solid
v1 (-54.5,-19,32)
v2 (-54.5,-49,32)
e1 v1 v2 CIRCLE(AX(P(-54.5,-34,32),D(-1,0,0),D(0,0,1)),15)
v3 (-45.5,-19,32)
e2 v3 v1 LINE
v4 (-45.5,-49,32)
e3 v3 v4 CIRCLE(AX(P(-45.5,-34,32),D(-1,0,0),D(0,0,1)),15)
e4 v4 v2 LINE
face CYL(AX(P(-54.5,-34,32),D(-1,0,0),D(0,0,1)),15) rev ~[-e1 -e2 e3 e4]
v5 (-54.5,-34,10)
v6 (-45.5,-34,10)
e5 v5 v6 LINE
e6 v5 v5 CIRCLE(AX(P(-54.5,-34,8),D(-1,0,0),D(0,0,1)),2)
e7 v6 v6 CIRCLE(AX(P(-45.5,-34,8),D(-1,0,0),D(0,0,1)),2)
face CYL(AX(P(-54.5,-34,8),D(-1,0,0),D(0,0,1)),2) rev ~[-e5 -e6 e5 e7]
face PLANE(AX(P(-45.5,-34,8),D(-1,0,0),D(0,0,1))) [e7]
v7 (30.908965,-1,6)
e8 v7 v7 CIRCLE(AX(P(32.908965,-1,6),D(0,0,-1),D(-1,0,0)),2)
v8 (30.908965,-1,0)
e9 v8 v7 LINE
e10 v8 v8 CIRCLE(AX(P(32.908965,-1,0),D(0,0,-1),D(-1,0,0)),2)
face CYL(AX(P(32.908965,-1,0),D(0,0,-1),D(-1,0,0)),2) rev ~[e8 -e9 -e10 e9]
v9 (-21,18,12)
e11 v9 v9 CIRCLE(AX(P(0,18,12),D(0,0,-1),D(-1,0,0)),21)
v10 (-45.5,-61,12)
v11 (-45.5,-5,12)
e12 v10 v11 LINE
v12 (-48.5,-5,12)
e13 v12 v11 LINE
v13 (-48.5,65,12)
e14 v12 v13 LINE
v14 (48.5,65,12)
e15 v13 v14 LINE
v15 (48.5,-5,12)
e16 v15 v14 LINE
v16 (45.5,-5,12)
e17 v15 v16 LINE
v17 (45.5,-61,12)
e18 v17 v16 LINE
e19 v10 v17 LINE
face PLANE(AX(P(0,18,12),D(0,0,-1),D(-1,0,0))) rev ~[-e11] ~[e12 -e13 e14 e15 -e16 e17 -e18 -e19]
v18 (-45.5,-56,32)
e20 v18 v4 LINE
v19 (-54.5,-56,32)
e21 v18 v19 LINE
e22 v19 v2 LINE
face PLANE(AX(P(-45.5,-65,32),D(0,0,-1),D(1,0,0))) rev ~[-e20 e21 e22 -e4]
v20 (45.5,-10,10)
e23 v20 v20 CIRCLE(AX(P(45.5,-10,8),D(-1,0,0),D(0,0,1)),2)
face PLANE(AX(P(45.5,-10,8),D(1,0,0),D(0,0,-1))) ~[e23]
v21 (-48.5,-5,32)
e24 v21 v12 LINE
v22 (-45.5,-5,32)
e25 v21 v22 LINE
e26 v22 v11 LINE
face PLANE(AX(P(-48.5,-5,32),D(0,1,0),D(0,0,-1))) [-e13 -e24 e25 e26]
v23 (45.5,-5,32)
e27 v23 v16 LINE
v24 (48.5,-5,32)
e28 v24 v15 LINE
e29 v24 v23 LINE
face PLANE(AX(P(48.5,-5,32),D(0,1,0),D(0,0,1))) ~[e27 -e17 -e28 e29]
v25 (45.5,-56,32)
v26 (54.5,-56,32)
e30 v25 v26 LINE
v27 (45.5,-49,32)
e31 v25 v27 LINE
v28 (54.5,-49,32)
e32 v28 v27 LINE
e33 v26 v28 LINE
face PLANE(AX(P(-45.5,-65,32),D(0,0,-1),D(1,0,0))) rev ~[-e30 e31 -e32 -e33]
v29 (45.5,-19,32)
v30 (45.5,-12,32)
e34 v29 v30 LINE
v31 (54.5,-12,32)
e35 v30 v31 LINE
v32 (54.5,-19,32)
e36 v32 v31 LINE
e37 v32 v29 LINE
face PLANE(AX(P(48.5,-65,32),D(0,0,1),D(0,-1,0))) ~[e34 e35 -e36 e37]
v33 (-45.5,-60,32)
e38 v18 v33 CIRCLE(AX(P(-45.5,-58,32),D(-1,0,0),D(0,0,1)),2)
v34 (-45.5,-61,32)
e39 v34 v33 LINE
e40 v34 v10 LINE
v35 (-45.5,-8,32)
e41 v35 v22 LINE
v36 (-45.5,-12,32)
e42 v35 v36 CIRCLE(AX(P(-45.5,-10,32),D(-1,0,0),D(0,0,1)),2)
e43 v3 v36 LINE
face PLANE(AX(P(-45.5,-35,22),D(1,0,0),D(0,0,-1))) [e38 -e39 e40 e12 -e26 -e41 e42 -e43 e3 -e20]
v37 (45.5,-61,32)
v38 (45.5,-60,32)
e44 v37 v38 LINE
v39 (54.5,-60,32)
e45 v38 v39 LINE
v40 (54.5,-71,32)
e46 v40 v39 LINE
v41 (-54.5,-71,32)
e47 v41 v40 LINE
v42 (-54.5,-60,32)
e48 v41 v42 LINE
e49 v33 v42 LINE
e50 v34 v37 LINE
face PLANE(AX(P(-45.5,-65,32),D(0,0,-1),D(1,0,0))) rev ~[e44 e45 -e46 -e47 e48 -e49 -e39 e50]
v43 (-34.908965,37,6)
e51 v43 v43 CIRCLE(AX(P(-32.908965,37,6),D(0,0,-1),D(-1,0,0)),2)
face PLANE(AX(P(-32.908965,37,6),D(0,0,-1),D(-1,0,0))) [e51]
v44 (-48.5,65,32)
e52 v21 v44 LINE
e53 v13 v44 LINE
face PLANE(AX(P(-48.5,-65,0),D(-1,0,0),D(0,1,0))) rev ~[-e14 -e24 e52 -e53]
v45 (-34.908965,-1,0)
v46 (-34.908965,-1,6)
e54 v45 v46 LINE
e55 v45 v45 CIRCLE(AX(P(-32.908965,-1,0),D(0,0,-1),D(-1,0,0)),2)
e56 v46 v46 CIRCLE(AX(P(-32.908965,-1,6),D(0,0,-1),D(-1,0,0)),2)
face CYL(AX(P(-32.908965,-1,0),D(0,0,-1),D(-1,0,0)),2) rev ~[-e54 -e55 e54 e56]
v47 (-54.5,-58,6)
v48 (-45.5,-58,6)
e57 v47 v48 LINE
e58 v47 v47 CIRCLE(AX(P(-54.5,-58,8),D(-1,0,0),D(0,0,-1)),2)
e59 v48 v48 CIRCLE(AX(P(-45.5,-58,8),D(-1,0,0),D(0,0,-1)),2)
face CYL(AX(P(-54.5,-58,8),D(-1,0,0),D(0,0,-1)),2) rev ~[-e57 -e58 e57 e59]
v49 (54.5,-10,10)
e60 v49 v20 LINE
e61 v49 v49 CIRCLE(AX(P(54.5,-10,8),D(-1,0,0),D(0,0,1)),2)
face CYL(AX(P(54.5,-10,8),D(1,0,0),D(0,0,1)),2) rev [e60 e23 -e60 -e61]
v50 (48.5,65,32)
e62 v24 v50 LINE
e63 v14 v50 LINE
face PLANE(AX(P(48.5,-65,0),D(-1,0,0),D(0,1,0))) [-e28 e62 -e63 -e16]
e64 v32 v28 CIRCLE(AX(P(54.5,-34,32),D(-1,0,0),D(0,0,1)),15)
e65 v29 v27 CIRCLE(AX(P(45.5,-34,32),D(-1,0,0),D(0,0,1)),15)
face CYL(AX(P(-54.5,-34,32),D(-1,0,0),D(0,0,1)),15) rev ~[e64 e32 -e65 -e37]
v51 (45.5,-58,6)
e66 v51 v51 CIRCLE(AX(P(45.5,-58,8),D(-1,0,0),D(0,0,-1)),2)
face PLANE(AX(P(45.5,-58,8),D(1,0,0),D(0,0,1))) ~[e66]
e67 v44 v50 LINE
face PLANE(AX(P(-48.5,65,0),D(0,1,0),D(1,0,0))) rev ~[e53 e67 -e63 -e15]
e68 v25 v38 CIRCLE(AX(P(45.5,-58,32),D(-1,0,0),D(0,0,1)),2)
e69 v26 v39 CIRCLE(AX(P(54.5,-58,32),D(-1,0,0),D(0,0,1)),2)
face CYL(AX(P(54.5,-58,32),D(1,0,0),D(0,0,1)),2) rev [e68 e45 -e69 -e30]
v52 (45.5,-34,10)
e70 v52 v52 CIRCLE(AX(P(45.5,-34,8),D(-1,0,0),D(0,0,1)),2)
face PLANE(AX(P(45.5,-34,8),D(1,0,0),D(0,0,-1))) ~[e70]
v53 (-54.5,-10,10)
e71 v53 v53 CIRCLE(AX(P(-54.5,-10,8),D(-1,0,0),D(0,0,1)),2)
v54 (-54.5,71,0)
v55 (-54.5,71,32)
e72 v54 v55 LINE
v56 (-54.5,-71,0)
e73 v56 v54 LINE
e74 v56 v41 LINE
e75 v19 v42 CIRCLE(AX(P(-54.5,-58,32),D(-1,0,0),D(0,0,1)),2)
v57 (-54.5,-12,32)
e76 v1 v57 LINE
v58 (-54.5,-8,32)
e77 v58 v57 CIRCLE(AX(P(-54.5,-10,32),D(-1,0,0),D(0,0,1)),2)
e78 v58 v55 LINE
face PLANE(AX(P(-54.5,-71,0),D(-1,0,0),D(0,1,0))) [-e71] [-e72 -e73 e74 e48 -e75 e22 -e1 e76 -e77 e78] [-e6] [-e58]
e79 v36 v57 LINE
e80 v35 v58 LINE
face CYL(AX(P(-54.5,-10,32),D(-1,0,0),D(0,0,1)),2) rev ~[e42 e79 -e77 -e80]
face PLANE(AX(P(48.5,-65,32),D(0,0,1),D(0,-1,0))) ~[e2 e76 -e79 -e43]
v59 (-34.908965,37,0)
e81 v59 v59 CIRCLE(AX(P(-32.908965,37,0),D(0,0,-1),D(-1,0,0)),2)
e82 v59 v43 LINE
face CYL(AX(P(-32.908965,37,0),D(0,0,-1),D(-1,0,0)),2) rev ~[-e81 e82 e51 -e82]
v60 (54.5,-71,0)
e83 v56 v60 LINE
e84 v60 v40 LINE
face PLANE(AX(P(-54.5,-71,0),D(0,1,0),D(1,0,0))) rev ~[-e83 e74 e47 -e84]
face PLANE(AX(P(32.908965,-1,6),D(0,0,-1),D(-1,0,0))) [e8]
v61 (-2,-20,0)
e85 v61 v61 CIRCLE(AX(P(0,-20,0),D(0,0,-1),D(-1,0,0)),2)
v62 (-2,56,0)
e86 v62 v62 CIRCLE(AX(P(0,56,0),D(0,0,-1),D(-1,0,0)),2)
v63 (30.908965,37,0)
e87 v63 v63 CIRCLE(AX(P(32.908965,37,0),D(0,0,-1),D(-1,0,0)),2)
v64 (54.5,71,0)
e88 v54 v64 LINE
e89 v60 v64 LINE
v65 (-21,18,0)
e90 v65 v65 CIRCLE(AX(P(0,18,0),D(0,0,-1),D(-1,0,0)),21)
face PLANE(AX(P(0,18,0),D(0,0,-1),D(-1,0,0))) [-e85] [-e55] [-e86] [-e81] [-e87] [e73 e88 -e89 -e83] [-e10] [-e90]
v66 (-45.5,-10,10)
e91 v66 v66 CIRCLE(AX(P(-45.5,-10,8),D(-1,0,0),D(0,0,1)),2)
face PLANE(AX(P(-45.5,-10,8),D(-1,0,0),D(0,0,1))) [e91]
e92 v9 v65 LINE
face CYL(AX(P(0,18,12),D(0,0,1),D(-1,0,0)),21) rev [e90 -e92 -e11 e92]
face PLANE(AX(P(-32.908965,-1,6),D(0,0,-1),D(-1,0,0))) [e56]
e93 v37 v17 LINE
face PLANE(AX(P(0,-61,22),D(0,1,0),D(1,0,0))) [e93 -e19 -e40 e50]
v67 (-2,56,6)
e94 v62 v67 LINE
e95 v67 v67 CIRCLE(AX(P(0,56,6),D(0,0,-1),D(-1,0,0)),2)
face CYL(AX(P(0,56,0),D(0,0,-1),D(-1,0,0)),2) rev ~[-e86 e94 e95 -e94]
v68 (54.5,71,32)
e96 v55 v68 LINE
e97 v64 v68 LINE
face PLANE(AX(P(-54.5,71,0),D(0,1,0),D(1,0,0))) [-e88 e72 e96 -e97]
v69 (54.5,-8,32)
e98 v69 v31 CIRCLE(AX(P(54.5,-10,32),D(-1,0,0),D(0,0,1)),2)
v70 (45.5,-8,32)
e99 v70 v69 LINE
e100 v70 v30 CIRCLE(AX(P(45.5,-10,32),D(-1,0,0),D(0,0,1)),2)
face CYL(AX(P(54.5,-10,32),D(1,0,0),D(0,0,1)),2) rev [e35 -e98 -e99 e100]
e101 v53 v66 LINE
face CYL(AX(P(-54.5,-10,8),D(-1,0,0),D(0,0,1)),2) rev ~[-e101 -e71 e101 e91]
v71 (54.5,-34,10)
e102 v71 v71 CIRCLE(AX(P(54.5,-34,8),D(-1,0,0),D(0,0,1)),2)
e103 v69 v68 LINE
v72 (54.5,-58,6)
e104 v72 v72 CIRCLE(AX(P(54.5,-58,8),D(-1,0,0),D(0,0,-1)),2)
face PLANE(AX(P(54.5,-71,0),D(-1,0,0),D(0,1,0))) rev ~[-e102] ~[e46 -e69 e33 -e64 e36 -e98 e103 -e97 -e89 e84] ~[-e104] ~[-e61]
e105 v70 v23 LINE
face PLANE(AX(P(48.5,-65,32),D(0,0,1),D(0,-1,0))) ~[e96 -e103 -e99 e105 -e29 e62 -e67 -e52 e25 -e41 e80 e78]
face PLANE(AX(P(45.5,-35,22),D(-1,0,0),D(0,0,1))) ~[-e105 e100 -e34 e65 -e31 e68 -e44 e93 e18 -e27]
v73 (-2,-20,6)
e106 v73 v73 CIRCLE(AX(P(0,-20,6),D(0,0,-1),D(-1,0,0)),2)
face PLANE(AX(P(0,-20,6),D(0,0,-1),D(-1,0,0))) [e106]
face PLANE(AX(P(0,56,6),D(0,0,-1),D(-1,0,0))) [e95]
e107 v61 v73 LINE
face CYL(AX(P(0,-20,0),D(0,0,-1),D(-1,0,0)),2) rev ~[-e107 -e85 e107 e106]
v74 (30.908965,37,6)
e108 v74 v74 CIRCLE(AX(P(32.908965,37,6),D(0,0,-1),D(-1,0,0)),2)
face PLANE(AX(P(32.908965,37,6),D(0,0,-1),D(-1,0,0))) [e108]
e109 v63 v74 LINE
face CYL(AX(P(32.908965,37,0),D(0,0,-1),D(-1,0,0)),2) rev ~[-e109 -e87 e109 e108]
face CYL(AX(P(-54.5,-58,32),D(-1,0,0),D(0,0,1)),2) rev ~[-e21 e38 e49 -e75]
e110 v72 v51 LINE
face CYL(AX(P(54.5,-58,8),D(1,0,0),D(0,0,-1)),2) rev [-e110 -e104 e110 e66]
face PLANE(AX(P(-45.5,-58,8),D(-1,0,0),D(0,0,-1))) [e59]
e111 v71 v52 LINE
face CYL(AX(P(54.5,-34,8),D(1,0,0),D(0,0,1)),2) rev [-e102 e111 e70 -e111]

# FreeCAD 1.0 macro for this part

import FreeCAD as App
import Part
import Sketcher
Q = App.Units.Quantity


def add_polygon(sketch, points):
    """Adds a closed chain of lines whose ends are joined by coincident constraints."""
    first, n = sketch.GeometryCount, len(points)
    for a, b in zip(points, points[1:] + points[:1]):
        sketch.addGeometry(Part.LineSegment(App.Vector(*a, 0), App.Vector(*b, 0)), False)
    for i in range(n):
        sketch.addConstraint(Sketcher.Constraint("Coincident", first + i, 2, first + (i + 1) % n, 1))

doc = App.newDocument("Part")
body = doc.addObject("PartDesign::Body", "Body")

# Sketch on XY plane
sketch1 = doc.addObject("Sketcher::SketchObject", "Sketch")
body.addObject(sketch1)
sketch1.AttachmentSupport = (doc.XY_Plane, [""])
sketch1.MapMode = "FlatFace"
add_polygon(sketch1, [(-48, 65), (-48, -65), (48, -65), (48, 65)])  # lines 0-3
sketch1.addConstraint(Sketcher.Constraint("Vertical", 0))
sketch1.addConstraint(Sketcher.Constraint("Horizontal", 1))
sketch1.addConstraint(Sketcher.Constraint("Vertical", 2))
sketch1.addConstraint(Sketcher.Constraint("Horizontal", 3))
sketch1.addConstraint(Sketcher.Constraint("Symmetric", 0, 2, 2, 2, -1, 1))
sketch1.addConstraint(Sketcher.Constraint("DistanceX", 1, 1, 1, 2, Q("97 mm")))
sketch1.addConstraint(Sketcher.Constraint("DistanceY", 0, 2, 0, 1, Q("130 mm")))
pad1 = doc.addObject("PartDesign::Pad", "Pad")
body.addObject(pad1)
pad1.Profile = sketch1
pad1.Length = 12

# Sketch on XY plane
sketch2 = doc.addObject("Sketcher::SketchObject", "Sketch001")
body.addObject(sketch2)
sketch2.AttachmentSupport = (doc.XY_Plane, [""])
sketch2.MapMode = "FlatFace"
sketch2.AttachmentOffset = App.Placement(App.Vector(0, 0, 12), App.Rotation())
sketch2.addGeometry(Part.Circle(App.Vector(0, 18, 0), App.Vector(0, 0, 1), 32), False)
sketch2.addConstraint(Sketcher.Constraint("PointOnObject", 0, 3, -2))
sketch2.addConstraint(Sketcher.Constraint("Diameter", 0, Q("64 mm")))
sketch2.addConstraint(Sketcher.Constraint("DistanceY", -1, 1, 0, 3, Q("18 mm")))
pocket1 = doc.addObject("PartDesign::Pocket", "Pocket")
body.addObject(pocket1)
pocket1.Profile = sketch2
pocket1.Length = 12

# Sketch on XY plane
sketch3 = doc.addObject("Sketcher::SketchObject", "Sketch002")
body.addObject(sketch3)
sketch3.AttachmentSupport = (doc.XY_Plane, [""])
sketch3.MapMode = "FlatFace"
add_polygon(sketch3, [(-54, 71), (-54, -71), (54, -71), (54, 71)])  # lines 0-3
add_polygon(sketch3, [(48, -65), (-48, -65), (-48, 65), (48, 65)])  # lines 4-7
sketch3.addConstraint(Sketcher.Constraint("Vertical", 0))
sketch3.addConstraint(Sketcher.Constraint("Horizontal", 1))
sketch3.addConstraint(Sketcher.Constraint("Vertical", 2))
sketch3.addConstraint(Sketcher.Constraint("Horizontal", 3))
sketch3.addConstraint(Sketcher.Constraint("Horizontal", 4))
sketch3.addConstraint(Sketcher.Constraint("Vertical", 5))
sketch3.addConstraint(Sketcher.Constraint("Horizontal", 6))
sketch3.addConstraint(Sketcher.Constraint("Vertical", 7))
sketch3.addConstraint(Sketcher.Constraint("Symmetric", 0, 2, 2, 2, -1, 1))
sketch3.addConstraint(Sketcher.Constraint("Symmetric", 4, 2, 6, 2, -1, 1))
sketch3.addConstraint(Sketcher.Constraint("DistanceX", 1, 1, 1, 2, Q("109 mm")))
sketch3.addConstraint(Sketcher.Constraint("DistanceX", 4, 2, 4, 1, Q("97 mm")))
sketch3.addConstraint(Sketcher.Constraint("DistanceY", 0, 2, 0, 1, Q("142 mm")))
sketch3.addConstraint(Sketcher.Constraint("DistanceY", 5, 1, 5, 2, Q("130 mm")))
pad2 = doc.addObject("PartDesign::Pad", "Pad001")
body.addObject(pad2)
pad2.Profile = sketch3
pad2.Length = 32

# Sketch on YZ plane
sketch4 = doc.addObject("Sketcher::SketchObject", "Sketch003")
body.addObject(sketch4)
sketch4.AttachmentSupport = (doc.YZ_Plane, [""])
sketch4.MapMode = "FlatFace"
sketch4.AttachmentOffset = App.Placement(App.Vector(0, 0, -48.5), App.Rotation())
add_polygon(sketch4, [(-5, 32), (-65, 32), (-65, 12), (-5, 12)])  # lines 0-3
sketch4.addConstraint(Sketcher.Constraint("Horizontal", 0))
sketch4.addConstraint(Sketcher.Constraint("Vertical", 1))
sketch4.addConstraint(Sketcher.Constraint("Horizontal", 2))
sketch4.addConstraint(Sketcher.Constraint("Vertical", 3))
sketch4.addConstraint(Sketcher.Constraint("DistanceX", 0, 2, 0, 1, Q("60 mm")))
sketch4.addConstraint(Sketcher.Constraint("DistanceY", 1, 2, 1, 1, Q("20 mm")))
sketch4.addConstraint(Sketcher.Constraint("DistanceX", 0, 2, -1, 1, Q("65 mm")))
sketch4.addConstraint(Sketcher.Constraint("DistanceY", -1, 1, 0, 2, Q("32 mm")))
pad3 = doc.addObject("PartDesign::Pad", "Pad002")
body.addObject(pad3)
pad3.Profile = sketch4
pad3.Length = 3
doc.recompute()

mirrored = doc.addObject("PartDesign::Mirrored", "Mirrored")
body.addObject(mirrored)
mirrored.Originals = [pad3]
mirrored.MirrorPlane = (doc.YZ_Plane, [""])
body.Tip = mirrored

# Sketch on YZ plane
sketch5 = doc.addObject("Sketcher::SketchObject", "Sketch004")
body.addObject(sketch5)
sketch5.AttachmentSupport = (doc.YZ_Plane, [""])
sketch5.MapMode = "FlatFace"
sketch5.AttachmentOffset = App.Placement(App.Vector(0, 0, -54.5), App.Rotation())
sketch5.addGeometry(Part.Circle(App.Vector(-34, 32, 0), App.Vector(0, 0, 1), 15), False)
sketch5.addConstraint(Sketcher.Constraint("Diameter", 0, Q("30 mm")))
sketch5.addConstraint(Sketcher.Constraint("DistanceX", 0, 3, -1, 1, Q("34 mm")))
sketch5.addConstraint(Sketcher.Constraint("DistanceY", -1, 1, 0, 3, Q("32 mm")))
pocket2 = doc.addObject("PartDesign::Pocket", "Pocket001")
body.addObject(pocket2)
pocket2.Profile = sketch5
pocket2.Type = "ThroughAll"
pocket2.Reversed = True

# Sketch on XZ plane
sketch6 = doc.addObject("Sketcher::SketchObject", "Sketch005")
body.addObject(sketch6)
sketch6.AttachmentSupport = (doc.XZ_Plane, [""])
sketch6.MapMode = "FlatFace"
sketch6.AttachmentOffset = App.Placement(App.Vector(0, 0, 65), App.Rotation())
add_polygon(sketch6, [(-46, 12), (-46, 32), (46, 32), (46, 12)])  # lines 0-3
sketch6.addConstraint(Sketcher.Constraint("Vertical", 0))
sketch6.addConstraint(Sketcher.Constraint("Horizontal", 1))
sketch6.addConstraint(Sketcher.Constraint("Vertical", 2))
sketch6.addConstraint(Sketcher.Constraint("Horizontal", 3))
sketch6.addConstraint(Sketcher.Constraint("DistanceX", 1, 1, 1, 2, Q("91 mm")))
sketch6.addConstraint(Sketcher.Constraint("DistanceY", 0, 1, 0, 2, Q("20 mm")))
sketch6.addConstraint(Sketcher.Constraint("DistanceY", -1, 1, 0, 2, Q("32 mm")))
sketch6.addConstraint(Sketcher.Constraint("DistanceX", 0, 2, -1, 1, Q("45.5 mm")))
pad4 = doc.addObject("PartDesign::Pad", "Pad003")
body.addObject(pad4)
pad4.Profile = sketch6
pad4.Length = 4
pad4.Reversed = True

# Sketch on YZ plane
sketch7 = doc.addObject("Sketcher::SketchObject", "Sketch006")
body.addObject(sketch7)
sketch7.AttachmentSupport = (doc.YZ_Plane, [""])
sketch7.MapMode = "FlatFace"
sketch7.AttachmentOffset = App.Placement(App.Vector(0, 0, -54.5), App.Rotation())
sketch7.addGeometry(Part.Circle(App.Vector(-10, 32, 0), App.Vector(0, 0, 1), 2), False)
sketch7.addGeometry(Part.Circle(App.Vector(-10, 8, 0), App.Vector(0, 0, 1), 2), False)
sketch7.addGeometry(Part.Circle(App.Vector(-10, 56, 0), App.Vector(0, 0, 1), 2), False)
sketch7.addGeometry(Part.Circle(App.Vector(-58, 56, 0), App.Vector(0, 0, 1), 2), False)
sketch7.addGeometry(Part.Circle(App.Vector(-58, 32, 0), App.Vector(0, 0, 1), 2), False)
sketch7.addGeometry(Part.Circle(App.Vector(-58, 8, 0), App.Vector(0, 0, 1), 2), False)
sketch7.addGeometry(Part.Circle(App.Vector(-34, 8, 0), App.Vector(0, 0, 1), 2), False)
sketch7.addConstraint(Sketcher.Constraint("Equal", 0, 1))
sketch7.addConstraint(Sketcher.Constraint("Equal", 1, 2))
sketch7.addConstraint(Sketcher.Constraint("Equal", 2, 3))
sketch7.addConstraint(Sketcher.Constraint("Equal", 3, 4))
sketch7.addConstraint(Sketcher.Constraint("Equal", 4, 5))
sketch7.addConstraint(Sketcher.Constraint("Equal", 5, 6))
sketch7.addConstraint(Sketcher.Constraint("Horizontal", 2, 3, 3, 3))
sketch7.addConstraint(Sketcher.Constraint("Horizontal", 0, 3, 4, 3))
sketch7.addConstraint(Sketcher.Constraint("Horizontal", 1, 3, 5, 3))
sketch7.addConstraint(Sketcher.Constraint("Horizontal", 5, 3, 6, 3))
sketch7.addConstraint(Sketcher.Constraint("Vertical", 0, 3, 1, 3))
sketch7.addConstraint(Sketcher.Constraint("Vertical", 1, 3, 2, 3))
sketch7.addConstraint(Sketcher.Constraint("Vertical", 3, 3, 4, 3))
sketch7.addConstraint(Sketcher.Constraint("Vertical", 4, 3, 5, 3))
sketch7.addConstraint(Sketcher.Constraint("Diameter", 0, Q("4 mm")))
sketch7.addConstraint(Sketcher.Constraint("DistanceX", 0, 3, -1, 1, Q("10 mm")))
sketch7.addConstraint(Sketcher.Constraint("DistanceY", -1, 1, 0, 3, Q("32 mm")))
sketch7.addConstraint(Sketcher.Constraint("DistanceY", -1, 1, 1, 3, Q("8 mm")))
sketch7.addConstraint(Sketcher.Constraint("DistanceY", -1, 1, 2, 3, Q("56 mm")))
sketch7.addConstraint(Sketcher.Constraint("DistanceX", 3, 3, -1, 1, Q("58 mm")))
sketch7.addConstraint(Sketcher.Constraint("DistanceX", 6, 3, -1, 1, Q("34 mm")))
pocket3 = doc.addObject("PartDesign::Pocket", "Pocket002")
body.addObject(pocket3)
pocket3.Profile = sketch7
pocket3.Length = 9
pocket3.Reversed = True
doc.recompute()

mirrored2 = doc.addObject("PartDesign::Mirrored", "Mirrored001")
body.addObject(mirrored2)
mirrored2.Originals = [pocket3]
mirrored2.MirrorPlane = (doc.YZ_Plane, [""])
body.Tip = mirrored2

# Sketch on XY plane
sketch8 = doc.addObject("Sketcher::SketchObject", "Sketch007")
body.addObject(sketch8)
sketch8.AttachmentSupport = (doc.XY_Plane, [""])
sketch8.MapMode = "FlatFace"
sketch8.addGeometry(Part.Circle(App.Vector(0, 56, 0), App.Vector(0, 0, 1), 2), False)
sketch8.addGeometry(Part.Circle(App.Vector(-32.9, 37, 0), App.Vector(0, 0, 1), 2), False)
sketch8.addGeometry(Part.Circle(App.Vector(-32.9, -1, 0), App.Vector(0, 0, 1), 2), False)
sketch8.addGeometry(Part.Circle(App.Vector(0, -20, 0), App.Vector(0, 0, 1), 2), False)
sketch8.addGeometry(Part.Circle(App.Vector(32.9, -1, 0), App.Vector(0, 0, 1), 2), False)
sketch8.addGeometry(Part.Circle(App.Vector(32.9, 37, 0), App.Vector(0, 0, 1), 2), False)
sketch8.addConstraint(Sketcher.Constraint("Equal", 0, 1))
sketch8.addConstraint(Sketcher.Constraint("Equal", 1, 2))
sketch8.addConstraint(Sketcher.Constraint("Equal", 2, 3))
sketch8.addConstraint(Sketcher.Constraint("Equal", 3, 4))
sketch8.addConstraint(Sketcher.Constraint("Equal", 4, 5))
sketch8.addConstraint(Sketcher.Constraint("Symmetric", 2, 3, 4, 3, -2))
sketch8.addConstraint(Sketcher.Constraint("Symmetric", 1, 3, 5, 3, -2))
sketch8.addConstraint(Sketcher.Constraint("PointOnObject", 0, 3, -2))
sketch8.addConstraint(Sketcher.Constraint("PointOnObject", 3, 3, -2))
sketch8.addConstraint(Sketcher.Constraint("Vertical", 1, 3, 2, 3))
sketch8.addConstraint(Sketcher.Constraint("Diameter", 0, Q("4 mm")))
sketch8.addConstraint(Sketcher.Constraint("DistanceY", -1, 1, 0, 3, Q("56 mm")))
sketch8.addConstraint(Sketcher.Constraint("DistanceY", -1, 1, 1, 3, Q("37 mm")))
sketch8.addConstraint(Sketcher.Constraint("DistanceY", 2, 3, -1, 1, Q("1 mm")))
sketch8.addConstraint(Sketcher.Constraint("DistanceY", 3, 3, -1, 1, Q("20 mm")))
sketch8.addConstraint(Sketcher.Constraint("DistanceX", 2, 3, 4, 3, Q("65.817931 mm")))
pocket4 = doc.addObject("PartDesign::Pocket", "Pocket003")
body.addObject(pocket4)
pocket4.Profile = sketch8
pocket4.Length = 6
pocket4.Reversed = True

# Sketch on XY plane
sketch9 = doc.addObject("Sketcher::SketchObject", "Sketch008")
body.addObject(sketch9)
sketch9.AttachmentSupport = (doc.XY_Plane, [""])
sketch9.MapMode = "FlatFace"
sketch9.AttachmentOffset = App.Placement(App.Vector(0, 0, 12), App.Rotation())
sketch9.addGeometry(Part.Circle(App.Vector(0, 18, 0), App.Vector(0, 0, 1), 32), False)
sketch9.addGeometry(Part.Circle(App.Vector(0, 18, 0), App.Vector(0, 0, 1), 21), False)
sketch9.addConstraint(Sketcher.Constraint("Coincident", 1, 3, 0, 3))
sketch9.addConstraint(Sketcher.Constraint("PointOnObject", 0, 3, -2))
sketch9.addConstraint(Sketcher.Constraint("Diameter", 0, Q("64 mm")))
sketch9.addConstraint(Sketcher.Constraint("Diameter", 1, Q("42 mm")))
sketch9.addConstraint(Sketcher.Constraint("DistanceY", -1, 1, 0, 3, Q("18 mm")))
pad5 = doc.addObject("PartDesign::Pad", "Pad004")
body.addObject(pad5)
pad5.Profile = sketch9
pad5.Length = 12
pad5.Reversed = True

doc.recompute()
